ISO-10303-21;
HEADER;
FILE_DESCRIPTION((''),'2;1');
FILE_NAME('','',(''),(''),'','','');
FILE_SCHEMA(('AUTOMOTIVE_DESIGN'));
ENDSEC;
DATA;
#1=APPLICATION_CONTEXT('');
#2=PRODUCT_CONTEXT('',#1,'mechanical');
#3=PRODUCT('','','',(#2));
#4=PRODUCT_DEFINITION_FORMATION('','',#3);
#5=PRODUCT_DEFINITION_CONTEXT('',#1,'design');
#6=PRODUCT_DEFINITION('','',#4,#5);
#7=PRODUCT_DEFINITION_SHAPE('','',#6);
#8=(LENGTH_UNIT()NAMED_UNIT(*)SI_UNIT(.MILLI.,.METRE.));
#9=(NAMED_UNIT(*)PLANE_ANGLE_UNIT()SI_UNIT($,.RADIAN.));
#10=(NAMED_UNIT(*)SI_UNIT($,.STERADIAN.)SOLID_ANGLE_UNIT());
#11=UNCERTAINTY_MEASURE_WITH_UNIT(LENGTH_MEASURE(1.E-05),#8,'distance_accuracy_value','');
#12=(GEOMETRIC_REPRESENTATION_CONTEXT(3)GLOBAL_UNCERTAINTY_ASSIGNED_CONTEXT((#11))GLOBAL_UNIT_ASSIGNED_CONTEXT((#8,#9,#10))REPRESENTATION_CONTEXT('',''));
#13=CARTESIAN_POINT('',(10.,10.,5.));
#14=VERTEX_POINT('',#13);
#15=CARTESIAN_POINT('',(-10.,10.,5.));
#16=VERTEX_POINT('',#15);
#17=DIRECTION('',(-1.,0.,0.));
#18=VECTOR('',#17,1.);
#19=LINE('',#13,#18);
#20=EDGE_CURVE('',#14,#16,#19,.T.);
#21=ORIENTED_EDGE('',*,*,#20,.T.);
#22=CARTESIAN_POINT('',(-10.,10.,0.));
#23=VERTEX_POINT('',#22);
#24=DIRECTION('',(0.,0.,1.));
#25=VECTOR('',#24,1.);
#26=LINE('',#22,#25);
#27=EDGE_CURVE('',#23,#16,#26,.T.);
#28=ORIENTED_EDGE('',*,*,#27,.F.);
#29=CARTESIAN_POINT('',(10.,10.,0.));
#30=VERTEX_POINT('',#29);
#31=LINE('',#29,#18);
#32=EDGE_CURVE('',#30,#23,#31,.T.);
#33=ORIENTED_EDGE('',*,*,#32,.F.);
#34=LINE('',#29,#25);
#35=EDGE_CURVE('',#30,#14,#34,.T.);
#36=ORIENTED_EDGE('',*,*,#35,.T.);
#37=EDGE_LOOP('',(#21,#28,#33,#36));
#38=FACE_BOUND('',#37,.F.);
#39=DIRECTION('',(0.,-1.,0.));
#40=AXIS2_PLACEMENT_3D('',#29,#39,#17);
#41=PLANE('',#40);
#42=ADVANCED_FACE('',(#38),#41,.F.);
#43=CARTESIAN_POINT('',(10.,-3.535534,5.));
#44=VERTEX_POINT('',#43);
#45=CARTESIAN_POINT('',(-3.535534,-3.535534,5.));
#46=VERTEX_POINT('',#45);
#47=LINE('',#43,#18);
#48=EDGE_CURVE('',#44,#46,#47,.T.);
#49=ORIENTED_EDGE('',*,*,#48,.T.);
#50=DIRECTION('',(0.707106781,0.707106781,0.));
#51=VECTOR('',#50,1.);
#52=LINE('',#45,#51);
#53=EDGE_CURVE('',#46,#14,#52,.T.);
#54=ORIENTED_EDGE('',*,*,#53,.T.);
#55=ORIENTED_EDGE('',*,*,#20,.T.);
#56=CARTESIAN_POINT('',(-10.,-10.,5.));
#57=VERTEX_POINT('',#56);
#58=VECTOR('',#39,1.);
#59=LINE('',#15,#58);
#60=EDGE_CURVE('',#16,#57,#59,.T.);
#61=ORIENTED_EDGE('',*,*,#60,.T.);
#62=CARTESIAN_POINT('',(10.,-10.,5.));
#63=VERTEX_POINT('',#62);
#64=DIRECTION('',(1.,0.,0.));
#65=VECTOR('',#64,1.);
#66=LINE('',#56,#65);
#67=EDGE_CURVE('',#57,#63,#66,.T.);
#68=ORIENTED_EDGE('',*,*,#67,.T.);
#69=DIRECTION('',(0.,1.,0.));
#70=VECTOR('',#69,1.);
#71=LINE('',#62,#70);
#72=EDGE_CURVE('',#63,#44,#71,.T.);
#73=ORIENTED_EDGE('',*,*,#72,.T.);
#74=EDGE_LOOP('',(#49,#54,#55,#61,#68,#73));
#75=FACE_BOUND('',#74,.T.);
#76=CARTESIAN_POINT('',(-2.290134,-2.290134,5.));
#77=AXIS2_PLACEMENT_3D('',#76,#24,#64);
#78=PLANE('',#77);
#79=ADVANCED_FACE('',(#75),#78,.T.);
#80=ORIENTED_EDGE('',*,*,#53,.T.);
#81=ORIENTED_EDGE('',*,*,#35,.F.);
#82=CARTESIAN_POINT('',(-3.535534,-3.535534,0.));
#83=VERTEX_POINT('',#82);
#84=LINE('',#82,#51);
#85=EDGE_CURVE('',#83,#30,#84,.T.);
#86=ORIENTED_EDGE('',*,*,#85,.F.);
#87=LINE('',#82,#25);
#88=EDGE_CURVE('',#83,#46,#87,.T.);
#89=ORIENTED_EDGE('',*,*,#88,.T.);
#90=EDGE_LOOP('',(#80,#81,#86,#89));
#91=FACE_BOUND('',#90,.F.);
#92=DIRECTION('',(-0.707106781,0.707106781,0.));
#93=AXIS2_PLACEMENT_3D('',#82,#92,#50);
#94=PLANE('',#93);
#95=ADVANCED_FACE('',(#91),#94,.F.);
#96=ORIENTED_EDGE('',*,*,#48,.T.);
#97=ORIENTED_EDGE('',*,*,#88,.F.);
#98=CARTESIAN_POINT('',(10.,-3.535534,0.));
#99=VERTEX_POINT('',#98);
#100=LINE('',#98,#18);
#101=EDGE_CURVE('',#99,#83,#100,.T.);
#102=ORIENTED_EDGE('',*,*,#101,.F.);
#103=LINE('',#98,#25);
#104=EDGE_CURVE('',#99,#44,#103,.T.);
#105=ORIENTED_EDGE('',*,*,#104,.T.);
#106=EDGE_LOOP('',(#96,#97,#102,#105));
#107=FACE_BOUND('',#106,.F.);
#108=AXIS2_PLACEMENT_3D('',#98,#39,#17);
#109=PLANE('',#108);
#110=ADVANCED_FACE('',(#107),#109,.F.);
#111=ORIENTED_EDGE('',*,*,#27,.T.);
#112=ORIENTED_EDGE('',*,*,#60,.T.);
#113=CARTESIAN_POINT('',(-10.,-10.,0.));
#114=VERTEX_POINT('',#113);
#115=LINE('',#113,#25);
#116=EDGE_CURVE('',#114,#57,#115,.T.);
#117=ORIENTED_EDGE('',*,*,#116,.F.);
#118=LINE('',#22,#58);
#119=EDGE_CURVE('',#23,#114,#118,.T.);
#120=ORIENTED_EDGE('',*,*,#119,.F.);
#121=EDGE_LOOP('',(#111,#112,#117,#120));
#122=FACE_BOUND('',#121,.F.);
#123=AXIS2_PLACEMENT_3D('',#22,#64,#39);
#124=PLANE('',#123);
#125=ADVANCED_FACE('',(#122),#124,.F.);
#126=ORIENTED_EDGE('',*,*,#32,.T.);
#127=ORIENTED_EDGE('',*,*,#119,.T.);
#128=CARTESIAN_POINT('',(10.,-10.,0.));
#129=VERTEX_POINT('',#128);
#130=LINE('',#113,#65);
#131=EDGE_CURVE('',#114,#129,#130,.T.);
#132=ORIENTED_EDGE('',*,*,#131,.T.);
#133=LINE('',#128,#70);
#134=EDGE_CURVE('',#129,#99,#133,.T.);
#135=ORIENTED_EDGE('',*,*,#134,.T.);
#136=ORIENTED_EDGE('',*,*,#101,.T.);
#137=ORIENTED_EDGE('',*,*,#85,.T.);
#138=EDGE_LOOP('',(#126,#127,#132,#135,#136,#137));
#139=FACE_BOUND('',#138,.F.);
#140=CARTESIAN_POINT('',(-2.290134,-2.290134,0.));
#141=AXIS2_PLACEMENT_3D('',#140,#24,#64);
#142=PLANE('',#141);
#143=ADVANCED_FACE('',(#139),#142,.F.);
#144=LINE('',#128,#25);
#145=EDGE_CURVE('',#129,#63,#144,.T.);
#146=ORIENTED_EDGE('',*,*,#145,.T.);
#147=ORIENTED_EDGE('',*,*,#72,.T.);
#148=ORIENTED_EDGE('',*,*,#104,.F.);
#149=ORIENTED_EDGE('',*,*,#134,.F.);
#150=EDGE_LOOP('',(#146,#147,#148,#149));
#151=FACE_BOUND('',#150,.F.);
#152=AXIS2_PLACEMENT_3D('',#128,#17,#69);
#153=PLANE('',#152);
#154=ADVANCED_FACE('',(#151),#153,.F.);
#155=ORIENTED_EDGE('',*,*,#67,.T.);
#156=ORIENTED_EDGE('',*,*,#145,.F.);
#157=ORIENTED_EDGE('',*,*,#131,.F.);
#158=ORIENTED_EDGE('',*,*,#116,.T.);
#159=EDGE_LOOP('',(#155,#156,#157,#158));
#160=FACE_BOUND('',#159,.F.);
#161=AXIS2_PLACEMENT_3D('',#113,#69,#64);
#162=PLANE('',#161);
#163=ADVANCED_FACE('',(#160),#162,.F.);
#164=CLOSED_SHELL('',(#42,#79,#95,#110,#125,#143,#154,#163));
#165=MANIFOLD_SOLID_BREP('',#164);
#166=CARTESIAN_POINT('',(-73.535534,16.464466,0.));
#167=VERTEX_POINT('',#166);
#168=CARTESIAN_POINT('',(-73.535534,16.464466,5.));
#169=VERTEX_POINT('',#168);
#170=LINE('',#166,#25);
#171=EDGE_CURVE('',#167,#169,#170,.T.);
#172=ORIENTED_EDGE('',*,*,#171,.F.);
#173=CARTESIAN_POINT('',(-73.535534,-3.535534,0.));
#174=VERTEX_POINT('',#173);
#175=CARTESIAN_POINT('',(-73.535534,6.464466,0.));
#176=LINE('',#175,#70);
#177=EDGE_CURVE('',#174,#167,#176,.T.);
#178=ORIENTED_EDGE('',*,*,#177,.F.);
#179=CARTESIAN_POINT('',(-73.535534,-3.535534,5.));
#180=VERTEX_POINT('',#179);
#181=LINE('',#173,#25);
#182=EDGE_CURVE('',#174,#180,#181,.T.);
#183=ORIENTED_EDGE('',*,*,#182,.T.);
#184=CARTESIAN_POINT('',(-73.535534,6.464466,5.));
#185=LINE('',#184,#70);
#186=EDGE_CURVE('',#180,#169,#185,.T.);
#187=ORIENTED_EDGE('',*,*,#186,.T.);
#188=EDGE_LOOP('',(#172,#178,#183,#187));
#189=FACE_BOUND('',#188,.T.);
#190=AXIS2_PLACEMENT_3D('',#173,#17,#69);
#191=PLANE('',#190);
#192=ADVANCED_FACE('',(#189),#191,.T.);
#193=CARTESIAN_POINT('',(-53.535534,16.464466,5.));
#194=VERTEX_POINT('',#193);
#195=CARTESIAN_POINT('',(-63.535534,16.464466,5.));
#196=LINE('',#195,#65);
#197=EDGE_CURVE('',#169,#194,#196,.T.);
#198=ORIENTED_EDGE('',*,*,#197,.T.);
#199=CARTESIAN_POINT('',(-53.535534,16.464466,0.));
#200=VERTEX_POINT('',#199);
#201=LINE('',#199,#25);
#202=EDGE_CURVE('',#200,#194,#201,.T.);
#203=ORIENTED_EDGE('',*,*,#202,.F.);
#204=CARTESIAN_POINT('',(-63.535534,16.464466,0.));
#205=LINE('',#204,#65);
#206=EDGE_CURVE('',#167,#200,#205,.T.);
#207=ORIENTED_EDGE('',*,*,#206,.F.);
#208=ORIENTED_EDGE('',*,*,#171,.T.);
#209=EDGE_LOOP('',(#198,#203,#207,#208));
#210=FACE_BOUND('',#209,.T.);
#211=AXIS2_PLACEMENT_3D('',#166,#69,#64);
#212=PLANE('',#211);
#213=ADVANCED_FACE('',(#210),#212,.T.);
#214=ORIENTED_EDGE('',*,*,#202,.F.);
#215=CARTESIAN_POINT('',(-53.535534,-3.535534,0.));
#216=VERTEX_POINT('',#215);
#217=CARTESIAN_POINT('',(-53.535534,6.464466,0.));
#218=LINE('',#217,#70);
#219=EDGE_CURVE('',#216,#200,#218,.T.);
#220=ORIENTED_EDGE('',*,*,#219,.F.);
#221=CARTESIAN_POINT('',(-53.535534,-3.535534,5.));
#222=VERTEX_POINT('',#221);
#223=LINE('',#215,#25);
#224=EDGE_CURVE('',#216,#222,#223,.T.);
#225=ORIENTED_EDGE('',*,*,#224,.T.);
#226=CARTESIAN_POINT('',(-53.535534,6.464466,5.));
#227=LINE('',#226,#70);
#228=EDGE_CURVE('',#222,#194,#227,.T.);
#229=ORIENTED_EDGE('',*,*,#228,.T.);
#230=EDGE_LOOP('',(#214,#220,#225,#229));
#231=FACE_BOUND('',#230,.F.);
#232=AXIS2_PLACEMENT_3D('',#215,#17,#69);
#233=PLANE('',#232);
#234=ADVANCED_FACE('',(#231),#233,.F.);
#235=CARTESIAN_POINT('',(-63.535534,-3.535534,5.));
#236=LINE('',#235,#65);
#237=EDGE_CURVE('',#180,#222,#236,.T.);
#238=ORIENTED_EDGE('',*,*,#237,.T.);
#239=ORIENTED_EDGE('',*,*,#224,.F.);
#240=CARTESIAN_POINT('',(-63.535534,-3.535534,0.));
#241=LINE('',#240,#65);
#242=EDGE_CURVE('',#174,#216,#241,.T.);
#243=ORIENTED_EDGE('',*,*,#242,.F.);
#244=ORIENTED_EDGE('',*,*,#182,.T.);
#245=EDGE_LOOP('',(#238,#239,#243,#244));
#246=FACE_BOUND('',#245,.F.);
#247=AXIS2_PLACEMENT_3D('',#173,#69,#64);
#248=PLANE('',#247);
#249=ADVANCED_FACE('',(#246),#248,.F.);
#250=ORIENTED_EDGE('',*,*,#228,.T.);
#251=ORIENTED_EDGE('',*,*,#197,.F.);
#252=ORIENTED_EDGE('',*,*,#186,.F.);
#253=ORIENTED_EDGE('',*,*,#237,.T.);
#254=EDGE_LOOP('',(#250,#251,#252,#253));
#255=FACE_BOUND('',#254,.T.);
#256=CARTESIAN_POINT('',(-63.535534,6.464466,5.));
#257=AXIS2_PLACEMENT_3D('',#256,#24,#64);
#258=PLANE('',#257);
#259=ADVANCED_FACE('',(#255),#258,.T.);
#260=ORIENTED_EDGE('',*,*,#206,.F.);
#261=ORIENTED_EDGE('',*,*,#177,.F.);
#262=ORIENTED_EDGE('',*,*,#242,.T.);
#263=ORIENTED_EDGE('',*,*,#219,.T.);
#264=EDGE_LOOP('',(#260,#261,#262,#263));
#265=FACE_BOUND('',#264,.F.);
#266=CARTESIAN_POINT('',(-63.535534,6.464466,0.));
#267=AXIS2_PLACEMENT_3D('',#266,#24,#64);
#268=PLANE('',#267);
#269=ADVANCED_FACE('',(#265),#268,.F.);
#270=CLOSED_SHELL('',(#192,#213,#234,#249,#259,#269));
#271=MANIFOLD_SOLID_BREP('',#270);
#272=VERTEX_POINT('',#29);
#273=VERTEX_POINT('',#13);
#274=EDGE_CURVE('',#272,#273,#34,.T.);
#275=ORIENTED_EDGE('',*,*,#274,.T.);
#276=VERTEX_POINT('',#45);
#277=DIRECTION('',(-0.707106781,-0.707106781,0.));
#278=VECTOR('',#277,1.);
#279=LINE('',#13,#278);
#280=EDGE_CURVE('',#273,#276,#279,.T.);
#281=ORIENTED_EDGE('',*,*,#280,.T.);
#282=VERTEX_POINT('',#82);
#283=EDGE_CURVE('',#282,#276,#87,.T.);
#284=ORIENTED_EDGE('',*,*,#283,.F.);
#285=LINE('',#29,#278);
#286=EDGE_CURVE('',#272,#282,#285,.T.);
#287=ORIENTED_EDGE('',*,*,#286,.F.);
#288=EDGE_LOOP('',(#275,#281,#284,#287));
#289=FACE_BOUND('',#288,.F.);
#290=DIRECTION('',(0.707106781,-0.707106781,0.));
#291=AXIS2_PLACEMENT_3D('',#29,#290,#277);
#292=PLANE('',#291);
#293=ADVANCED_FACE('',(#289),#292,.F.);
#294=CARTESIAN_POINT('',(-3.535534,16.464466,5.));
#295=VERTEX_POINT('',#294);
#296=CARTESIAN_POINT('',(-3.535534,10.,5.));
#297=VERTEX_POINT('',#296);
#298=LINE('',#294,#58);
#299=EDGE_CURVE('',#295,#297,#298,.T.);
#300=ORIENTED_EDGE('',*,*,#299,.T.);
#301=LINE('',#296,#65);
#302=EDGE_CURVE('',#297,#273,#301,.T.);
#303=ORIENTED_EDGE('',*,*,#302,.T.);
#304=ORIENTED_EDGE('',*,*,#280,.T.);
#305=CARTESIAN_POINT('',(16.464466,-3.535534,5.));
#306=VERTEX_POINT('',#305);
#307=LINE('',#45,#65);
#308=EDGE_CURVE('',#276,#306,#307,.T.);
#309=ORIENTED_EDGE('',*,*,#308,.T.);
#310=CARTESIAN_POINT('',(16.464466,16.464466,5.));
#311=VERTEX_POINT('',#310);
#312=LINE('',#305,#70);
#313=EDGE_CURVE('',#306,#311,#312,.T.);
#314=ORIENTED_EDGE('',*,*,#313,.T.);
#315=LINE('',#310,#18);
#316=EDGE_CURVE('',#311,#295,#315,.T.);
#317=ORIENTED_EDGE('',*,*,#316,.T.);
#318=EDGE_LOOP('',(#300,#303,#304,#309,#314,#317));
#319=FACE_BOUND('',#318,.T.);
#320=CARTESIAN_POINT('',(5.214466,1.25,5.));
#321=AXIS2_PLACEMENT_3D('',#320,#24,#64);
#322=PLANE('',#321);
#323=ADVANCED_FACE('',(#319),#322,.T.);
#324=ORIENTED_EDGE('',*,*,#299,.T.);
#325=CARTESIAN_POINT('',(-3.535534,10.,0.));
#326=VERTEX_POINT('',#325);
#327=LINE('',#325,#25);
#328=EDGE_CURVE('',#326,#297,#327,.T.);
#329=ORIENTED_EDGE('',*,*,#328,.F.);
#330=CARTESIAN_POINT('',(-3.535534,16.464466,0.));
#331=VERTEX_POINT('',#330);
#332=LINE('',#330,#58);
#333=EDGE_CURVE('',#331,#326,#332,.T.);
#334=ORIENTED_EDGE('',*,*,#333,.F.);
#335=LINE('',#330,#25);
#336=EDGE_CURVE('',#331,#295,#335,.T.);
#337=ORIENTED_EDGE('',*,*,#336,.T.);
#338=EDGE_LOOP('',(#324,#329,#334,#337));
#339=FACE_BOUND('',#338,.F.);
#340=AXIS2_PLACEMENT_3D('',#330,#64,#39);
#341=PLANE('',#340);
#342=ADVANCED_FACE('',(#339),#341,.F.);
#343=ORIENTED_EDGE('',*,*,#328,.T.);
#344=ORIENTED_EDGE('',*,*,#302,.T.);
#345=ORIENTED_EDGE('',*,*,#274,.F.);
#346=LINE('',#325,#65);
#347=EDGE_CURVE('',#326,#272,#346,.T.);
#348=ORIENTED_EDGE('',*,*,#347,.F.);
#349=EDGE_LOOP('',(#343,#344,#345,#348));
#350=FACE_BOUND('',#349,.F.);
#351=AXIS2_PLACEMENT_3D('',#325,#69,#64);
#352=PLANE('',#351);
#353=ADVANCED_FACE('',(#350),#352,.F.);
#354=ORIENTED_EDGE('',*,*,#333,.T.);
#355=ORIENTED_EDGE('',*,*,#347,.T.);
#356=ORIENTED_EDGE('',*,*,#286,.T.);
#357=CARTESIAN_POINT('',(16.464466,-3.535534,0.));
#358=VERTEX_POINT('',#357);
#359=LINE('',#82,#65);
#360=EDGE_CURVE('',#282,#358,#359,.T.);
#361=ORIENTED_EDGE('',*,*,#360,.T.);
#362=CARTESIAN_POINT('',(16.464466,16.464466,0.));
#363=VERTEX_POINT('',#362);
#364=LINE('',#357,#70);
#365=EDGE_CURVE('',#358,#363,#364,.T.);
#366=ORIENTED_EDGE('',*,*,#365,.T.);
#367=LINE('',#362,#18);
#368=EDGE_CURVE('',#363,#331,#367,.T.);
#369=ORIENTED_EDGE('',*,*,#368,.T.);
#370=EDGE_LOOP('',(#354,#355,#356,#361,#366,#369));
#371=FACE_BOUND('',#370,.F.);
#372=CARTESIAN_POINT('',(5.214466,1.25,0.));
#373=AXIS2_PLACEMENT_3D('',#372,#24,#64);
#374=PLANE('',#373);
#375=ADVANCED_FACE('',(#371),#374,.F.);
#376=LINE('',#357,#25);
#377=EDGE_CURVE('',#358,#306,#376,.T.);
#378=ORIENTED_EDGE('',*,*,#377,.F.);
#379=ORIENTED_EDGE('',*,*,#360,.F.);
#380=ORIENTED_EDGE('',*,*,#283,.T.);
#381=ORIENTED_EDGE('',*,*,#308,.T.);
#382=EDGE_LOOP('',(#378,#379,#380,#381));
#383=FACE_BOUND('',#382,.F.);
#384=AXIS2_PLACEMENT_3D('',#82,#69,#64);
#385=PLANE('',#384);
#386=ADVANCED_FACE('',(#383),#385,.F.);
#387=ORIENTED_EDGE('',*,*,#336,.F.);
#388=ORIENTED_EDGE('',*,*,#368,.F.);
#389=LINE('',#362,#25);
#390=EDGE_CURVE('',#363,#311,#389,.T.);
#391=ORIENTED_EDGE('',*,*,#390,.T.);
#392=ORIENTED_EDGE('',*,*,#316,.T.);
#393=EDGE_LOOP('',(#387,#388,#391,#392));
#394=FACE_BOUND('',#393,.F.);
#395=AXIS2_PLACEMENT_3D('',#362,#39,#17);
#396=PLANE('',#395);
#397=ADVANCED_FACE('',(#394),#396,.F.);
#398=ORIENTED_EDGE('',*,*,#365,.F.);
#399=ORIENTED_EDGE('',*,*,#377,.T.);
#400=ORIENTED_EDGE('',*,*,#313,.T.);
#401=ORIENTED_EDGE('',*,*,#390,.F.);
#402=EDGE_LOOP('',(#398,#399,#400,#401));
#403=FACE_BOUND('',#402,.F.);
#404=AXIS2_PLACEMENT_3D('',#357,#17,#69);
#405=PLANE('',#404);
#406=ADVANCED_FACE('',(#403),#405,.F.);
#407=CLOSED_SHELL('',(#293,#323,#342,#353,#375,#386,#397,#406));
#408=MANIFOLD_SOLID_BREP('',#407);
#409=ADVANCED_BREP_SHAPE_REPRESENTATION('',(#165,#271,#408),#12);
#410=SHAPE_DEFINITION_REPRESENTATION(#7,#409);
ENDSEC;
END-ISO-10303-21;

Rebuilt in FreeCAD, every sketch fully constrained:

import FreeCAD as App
import Part
import Sketcher
from FreeCAD import Vector
Q = App.Units.Quantity


def add_polygon(sketch, points):
    """Adds a closed chain of lines whose ends are joined by coincident constraints."""
    first, n = sketch.GeometryCount, len(points)
    for a, b in zip(points, points[1:] + points[:1]):
        sketch.addGeometry(Part.LineSegment(App.Vector(*a, 0), App.Vector(*b, 0)), False)
    for i in range(n):
        sketch.addConstraint(Sketcher.Constraint("Coincident", first + i, 2, first + (i + 1) % n, 1))

doc = App.newDocument("Part")
body = doc.addObject("PartDesign::Body", "Body")

# Sketch on XY plane
sketch1 = doc.addObject("Sketcher::SketchObject", "Sketch")
body.addObject(sketch1)
sketch1.AttachmentSupport = (doc.XY_Plane, [""])
sketch1.MapMode = "FlatFace"
add_polygon(sketch1, [(-10, -10), (10, -10), (10, -4), (-4, -4), (10, 10), (-10, 10)])  # lines 0-5
sketch1.addConstraint(Sketcher.Constraint("Horizontal", 0))
sketch1.addConstraint(Sketcher.Constraint("Vertical", 1))
sketch1.addConstraint(Sketcher.Constraint("Horizontal", 2))
sketch1.addConstraint(Sketcher.Constraint("Horizontal", 4))
sketch1.addConstraint(Sketcher.Constraint("Vertical", 5))
sketch1.addConstraint(Sketcher.Constraint("Symmetric", 0, 2, 4, 2, -1, 1))
sketch1.addConstraint(Sketcher.Constraint("Vertical", 1, 2, 3, 2))
sketch1.addConstraint(Sketcher.Constraint("Equal", 4, 5))
sketch1.addConstraint(Sketcher.Constraint("DistanceX", 0, 1, 0, 2, 20.0))
sketch1.addConstraint(Sketcher.Constraint("Angle", 3, Q("45 deg")))
sketch1.addConstraint(Sketcher.Constraint("DistanceX", 2, 2, 2, 1, 13.535534))
pad1 = doc.addObject("PartDesign::Pad", "Pad")
body.addObject(pad1)
pad1.Profile = sketch1
pad1.Length = 5
body2 = doc.addObject("PartDesign::Body", "Body001")

# Sketch on XY plane
sketch2 = doc.addObject("Sketcher::SketchObject", "Sketch001")
body2.addObject(sketch2)
sketch2.AttachmentSupport = (doc.getObject("XY_Plane001"), [""])
sketch2.MapMode = "FlatFace"
add_polygon(sketch2, [(-4, -4), (16, -4), (16, 16), (-4, 16), (-4, 10), (10, 10)])  # lines 0-5
sketch2.addConstraint(Sketcher.Constraint("Horizontal", 0))
sketch2.addConstraint(Sketcher.Constraint("Vertical", 1))
sketch2.addConstraint(Sketcher.Constraint("Horizontal", 2))
sketch2.addConstraint(Sketcher.Constraint("Vertical", 3))
sketch2.addConstraint(Sketcher.Constraint("Horizontal", 4))
sketch2.addConstraint(Sketcher.Constraint("Vertical", 3, 2, 5, 2))
sketch2.addConstraint(Sketcher.Constraint("Equal", 2, 1))
sketch2.addConstraint(Sketcher.Constraint("DistanceX", 0, 1, 0, 2, 20.0))
sketch2.addConstraint(Sketcher.Constraint("Angle", 5, Q("-135 deg")))
sketch2.addConstraint(Sketcher.Constraint("DistanceY", -1, 1, 3, 2, 10.0))
sketch2.addConstraint(Sketcher.Constraint("DistanceX", -1, 1, 4, 2, 10.0))
sketch2.addConstraint(Sketcher.Constraint("DistanceX", 4, 1, 4, 2, 13.535534))
pad2 = doc.addObject("PartDesign::Pad", "Pad001")
body2.addObject(pad2)
pad2.Profile = sketch2
pad2.Length = 5
body3 = doc.addObject("PartDesign::Body", "Body002")

# Sketch on XY plane
sketch3 = doc.addObject("Sketcher::SketchObject", "Sketch002")
body3.addObject(sketch3)
sketch3.AttachmentSupport = (doc.getObject("XY_Plane002"), [""])
sketch3.MapMode = "FlatFace"
add_polygon(sketch3, [(-74, 16), (-74, -4), (-54, -4), (-54, 16)])  # lines 0-3
sketch3.addConstraint(Sketcher.Constraint("Vertical", 0))
sketch3.addConstraint(Sketcher.Constraint("Horizontal", 1))
sketch3.addConstraint(Sketcher.Constraint("Vertical", 2))
sketch3.addConstraint(Sketcher.Constraint("Horizontal", 3))
sketch3.addConstraint(Sketcher.Constraint("Equal", 3, 0))
sketch3.addConstraint(Sketcher.Constraint("DistanceX", 1, 1, 1, 2, 20.0))
sketch3.addConstraint(Sketcher.Constraint("DistanceX", 0, 2, -1, 1, 73.535534))
sketch3.addConstraint(Sketcher.Constraint("DistanceY", 0, 2, -1, 1, 3.535534))
pad3 = doc.addObject("PartDesign::Pad", "Pad002")
body3.addObject(pad3)
pad3.Profile = sketch3
pad3.Length = 5

doc.recompute()
